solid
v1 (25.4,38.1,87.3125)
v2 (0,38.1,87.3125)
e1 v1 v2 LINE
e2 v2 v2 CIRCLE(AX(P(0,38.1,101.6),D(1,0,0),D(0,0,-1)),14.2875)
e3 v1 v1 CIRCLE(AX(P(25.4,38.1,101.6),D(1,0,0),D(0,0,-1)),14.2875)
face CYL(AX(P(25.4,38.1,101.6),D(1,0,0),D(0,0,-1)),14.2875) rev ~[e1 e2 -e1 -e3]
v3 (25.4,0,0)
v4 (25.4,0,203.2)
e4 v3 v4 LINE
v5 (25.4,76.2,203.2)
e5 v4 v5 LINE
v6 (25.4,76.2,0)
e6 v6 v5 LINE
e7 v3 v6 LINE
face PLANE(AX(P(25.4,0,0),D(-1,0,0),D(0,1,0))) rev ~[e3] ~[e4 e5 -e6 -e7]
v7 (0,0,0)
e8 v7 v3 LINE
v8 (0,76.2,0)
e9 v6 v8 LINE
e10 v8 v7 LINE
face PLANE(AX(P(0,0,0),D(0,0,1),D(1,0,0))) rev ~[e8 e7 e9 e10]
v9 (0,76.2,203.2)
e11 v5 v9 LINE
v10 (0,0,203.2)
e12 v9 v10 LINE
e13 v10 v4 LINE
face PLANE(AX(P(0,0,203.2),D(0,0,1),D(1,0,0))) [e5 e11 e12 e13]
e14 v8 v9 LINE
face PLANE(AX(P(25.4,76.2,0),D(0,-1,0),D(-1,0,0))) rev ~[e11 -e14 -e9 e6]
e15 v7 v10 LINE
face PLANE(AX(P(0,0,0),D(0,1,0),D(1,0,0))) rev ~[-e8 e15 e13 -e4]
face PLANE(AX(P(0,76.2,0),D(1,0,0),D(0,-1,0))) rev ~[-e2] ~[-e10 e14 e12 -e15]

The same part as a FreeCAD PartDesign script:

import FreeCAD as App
import Part
import Sketcher
Q = App.Units.Quantity


def add_polygon(sketch, points):
    """Adds a closed chain of lines whose ends are joined by coincident constraints."""
    first, n = sketch.GeometryCount, len(points)
    for a, b in zip(points, points[1:] + points[:1]):
        sketch.addGeometry(Part.LineSegment(App.Vector(*a, 0), App.Vector(*b, 0)), False)
    for i in range(n):
        sketch.addConstraint(Sketcher.Constraint("Coincident", first + i, 2, first + (i + 1) % n, 1))

doc = App.newDocument("Part")
body = doc.addObject("PartDesign::Body", "Body")

# Sketch on XY plane
sketch1 = doc.addObject("Sketcher::SketchObject", "Sketch")
body.addObject(sketch1)
sketch1.AttachmentSupport = (doc.XY_Plane, [""])
sketch1.MapMode = "FlatFace"
add_polygon(sketch1, [(0, 76.2), (0, 0), (25.4, 0), (25.4, 76.2)])  # lines 0-3
sketch1.addConstraint([
    Sketcher.Constraint("Vertical", 0),
    Sketcher.Constraint("Horizontal", 1),
    Sketcher.Constraint("Vertical", 2),
    Sketcher.Constraint("Horizontal", 3),
    Sketcher.Constraint("Coincident", 0, 2, -1, 1),
    Sketcher.Constraint("DistanceX", 1, 1, 1, 2, Q("1 in")),
    Sketcher.Constraint("DistanceY", 0, 2, 0, 1, Q("3 in")),
])
pad1 = doc.addObject("PartDesign::Pad", "Pad")
body.addObject(pad1)
pad1.Profile = sketch1
pad1.Length = Q("8 in")

# Sketch on YZ plane
sketch2 = doc.addObject("Sketcher::SketchObject", "Sketch001")
body.addObject(sketch2)
sketch2.AttachmentSupport = (doc.YZ_Plane, [""])
sketch2.MapMode = "FlatFace"
sketch2.AttachmentOffset = App.Placement(App.Vector(0, 0, 1 * 25.4), App.Rotation())
sketch2.addGeometry(Part.Circle(App.Vector(38.1, 101.6, 0), App.Vector(0, 0, 1), 14.2875), False)
sketch2.addConstraint([
    Sketcher.Constraint("Diameter", 0, Q("1.125 in")),
    Sketcher.Constraint("DistanceY", -1, 1, 0, 3, Q("4 in")),
    Sketcher.Constraint("DistanceX", -1, 1, 0, 3, Q("1.5 in")),
])
pocket1 = doc.addObject("PartDesign::Pocket", "Pocket")
body.addObject(pocket1)
pocket1.Profile = sketch2
pocket1.Type = "UpToFirst"

doc.recompute()
